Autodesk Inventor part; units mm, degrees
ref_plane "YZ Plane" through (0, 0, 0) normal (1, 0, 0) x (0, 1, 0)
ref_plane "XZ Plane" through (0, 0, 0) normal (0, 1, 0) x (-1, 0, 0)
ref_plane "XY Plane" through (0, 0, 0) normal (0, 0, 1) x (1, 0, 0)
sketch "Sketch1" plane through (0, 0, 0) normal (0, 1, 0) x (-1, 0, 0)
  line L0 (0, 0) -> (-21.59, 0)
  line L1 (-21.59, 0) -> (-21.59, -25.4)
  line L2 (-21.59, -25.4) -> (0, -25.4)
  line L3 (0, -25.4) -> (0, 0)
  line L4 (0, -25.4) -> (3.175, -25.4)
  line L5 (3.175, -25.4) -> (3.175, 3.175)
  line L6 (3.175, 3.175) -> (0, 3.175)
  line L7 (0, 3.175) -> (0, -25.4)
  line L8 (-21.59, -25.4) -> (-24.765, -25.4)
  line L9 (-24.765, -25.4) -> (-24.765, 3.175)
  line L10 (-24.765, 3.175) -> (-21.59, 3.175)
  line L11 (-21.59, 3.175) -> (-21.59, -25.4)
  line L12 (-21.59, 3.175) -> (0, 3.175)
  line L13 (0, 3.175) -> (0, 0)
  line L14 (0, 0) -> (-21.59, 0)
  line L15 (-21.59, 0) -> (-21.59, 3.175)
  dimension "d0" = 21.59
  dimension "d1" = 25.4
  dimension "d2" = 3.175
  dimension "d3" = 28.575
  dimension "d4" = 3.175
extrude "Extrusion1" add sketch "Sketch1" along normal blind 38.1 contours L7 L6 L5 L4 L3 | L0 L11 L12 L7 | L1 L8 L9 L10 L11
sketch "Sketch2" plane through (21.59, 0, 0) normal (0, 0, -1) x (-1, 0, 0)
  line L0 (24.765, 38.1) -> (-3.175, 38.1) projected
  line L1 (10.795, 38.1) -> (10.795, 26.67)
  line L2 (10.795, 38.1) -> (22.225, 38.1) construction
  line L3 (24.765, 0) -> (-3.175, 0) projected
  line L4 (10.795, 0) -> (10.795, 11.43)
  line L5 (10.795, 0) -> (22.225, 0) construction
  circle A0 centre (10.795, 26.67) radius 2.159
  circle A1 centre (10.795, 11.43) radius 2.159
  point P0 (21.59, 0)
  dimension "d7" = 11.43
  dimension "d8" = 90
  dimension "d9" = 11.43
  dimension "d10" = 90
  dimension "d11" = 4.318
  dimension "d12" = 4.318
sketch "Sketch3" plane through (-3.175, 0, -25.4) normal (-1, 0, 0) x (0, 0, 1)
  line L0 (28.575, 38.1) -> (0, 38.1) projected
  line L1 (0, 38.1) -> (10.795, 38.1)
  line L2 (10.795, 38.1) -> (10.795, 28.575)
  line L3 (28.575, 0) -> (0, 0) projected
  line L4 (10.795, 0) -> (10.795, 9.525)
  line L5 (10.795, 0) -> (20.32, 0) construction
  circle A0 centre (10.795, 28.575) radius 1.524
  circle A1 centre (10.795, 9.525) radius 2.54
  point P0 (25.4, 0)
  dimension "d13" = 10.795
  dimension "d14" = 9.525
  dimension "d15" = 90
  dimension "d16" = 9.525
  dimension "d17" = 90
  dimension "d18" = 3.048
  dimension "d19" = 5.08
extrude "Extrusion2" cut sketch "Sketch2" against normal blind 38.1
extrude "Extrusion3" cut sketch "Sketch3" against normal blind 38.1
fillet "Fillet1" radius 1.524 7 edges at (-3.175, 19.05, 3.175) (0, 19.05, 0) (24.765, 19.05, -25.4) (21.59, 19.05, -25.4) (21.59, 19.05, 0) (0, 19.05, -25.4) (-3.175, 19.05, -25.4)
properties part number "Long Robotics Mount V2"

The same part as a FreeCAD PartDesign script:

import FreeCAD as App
import Part
import Sketcher
Q = App.Units.Quantity


def edges_at(feature, points):
    """Names of the edges that pass closest to the given points."""
    edges = feature.Shape.Edges
    near = lambda p: min(range(len(edges)), key=lambda i: edges[i].distToShape(Part.Vertex(*p))[0])
    return sorted({f"Edge{near(p) + 1}" for p in points})


def add_polygon(sketch, points):
    """Adds a closed chain of lines whose ends are joined by coincident constraints."""
    first, n = sketch.GeometryCount, len(points)
    for a, b in zip(points, points[1:] + points[:1]):
        sketch.addGeometry(Part.LineSegment(App.Vector(*a, 0), App.Vector(*b, 0)), False)
    for i in range(n):
        sketch.addConstraint(Sketcher.Constraint("Coincident", first + i, 2, first + (i + 1) % n, 1))

doc = App.newDocument("Part")
body = doc.addObject("PartDesign::Body", "Body")

# Sketch on XZ plane
sketch1 = body.newObject("Sketcher::SketchObject", "Sketch")
sketch1.AttachmentSupport = (doc.getObject("XZ_Plane"), [""])
sketch1.MapMode = "FlatFace"
add_polygon(sketch1, [(-3.175, 3.175), (24.765, 3.175), (24.765, -25.4), (21.59, -25.4), (21.59, 0), (0, 0), (0, -25.4), (-3.175, -25.4)])  # lines 0-7
sketch1.addConstraint([
    Sketcher.Constraint("Horizontal", 0),
    Sketcher.Constraint("Vertical", 1),
    Sketcher.Constraint("Horizontal", 2),
    Sketcher.Constraint("Vertical", 3),
    Sketcher.Constraint("Horizontal", 4),
    Sketcher.Constraint("Vertical", 5),
    Sketcher.Constraint("Horizontal", 6),
    Sketcher.Constraint("Vertical", 7),
    Sketcher.Constraint("Coincident", 4, 2, -1, 1),
    Sketcher.Constraint("Horizontal", 2, 2, 5, 2),
    Sketcher.Constraint("Equal", 2, 6),
    Sketcher.Constraint("DistanceY", 3, 1, 3, 2, Q("1 in")),
    Sketcher.Constraint("DistanceX", 4, 2, 4, 1, Q("0.85 in")),
    Sketcher.Constraint("DistanceX", 2, 2, 2, 1, Q("0.125 in")),
    Sketcher.Constraint("DistanceY", 1, 2, 1, 1, Q("1.125 in")),
])
pad1 = body.newObject("PartDesign::Pad", "Pad")
pad1.Profile = sketch1
pad1.Length = Q("1.5 in")
pad1.Reversed = True

# Sketch on XY plane
sketch2 = body.newObject("Sketcher::SketchObject", "Sketch001")
sketch2.AttachmentSupport = (doc.getObject("XY_Plane"), [""])
sketch2.MapMode = "FlatFace"
sketch2.addGeometry([
    Part.Circle(App.Vector(10.795, 26.67, 0), App.Vector(0, 0, 1), 2.159),
    Part.Circle(App.Vector(10.795, 11.43, 0), App.Vector(0, 0, 1), 2.159),
], False)
sketch2.addConstraint([
    Sketcher.Constraint("Equal", 0, 1),
    Sketcher.Constraint("Vertical", 0, 3, 1, 3),
    Sketcher.Constraint("Diameter", 0, Q("0.17 in")),
    Sketcher.Constraint("DistanceY", -1, 1, 1, 3, Q("0.45 in")),
    Sketcher.Constraint("DistanceY", 1, 3, 0, 3, Q("0.6 in")),
    Sketcher.Constraint("DistanceX", -1, 1, 0, 3, Q("0.425 in")),
])
pocket1 = body.newObject("PartDesign::Pocket", "Pocket")
pocket1.Profile = sketch2
pocket1.Length = Q("1.5 in")
pocket1.Reversed = True

# Sketch on YZ plane
sketch3 = body.newObject("Sketcher::SketchObject", "Sketch002")
sketch3.AttachmentSupport = (doc.getObject("YZ_Plane"), [""])
sketch3.MapMode = "FlatFace"
sketch3.AttachmentOffset = App.Placement(App.Vector(0, 0, -0.125 * 25.4), App.Rotation())
sketch3.addGeometry([
    Part.Circle(App.Vector(28.575, -14.605, 0), App.Vector(0, 0, 1), 1.524),
    Part.Circle(App.Vector(9.525, -14.605, 0), App.Vector(0, 0, 1), 2.54),
], False)
sketch3.addConstraint([
    Sketcher.Constraint("Horizontal", 0, 3, 1, 3),
    Sketcher.Constraint("Diameter", 1, Q("0.2 in")),
    Sketcher.Constraint("Diameter", 0, Q("0.12 in")),
    Sketcher.Constraint("DistanceX", -1, 1, 1, 3, Q("0.375 in")),
    Sketcher.Constraint("DistanceX", 1, 3, 0, 3, Q("0.75 in")),
    Sketcher.Constraint("DistanceY", 0, 3, -1, 1, Q("0.575 in")),
])
pocket2 = body.newObject("PartDesign::Pocket", "Pocket001")
pocket2.Profile = sketch3
pocket2.Length = Q("1.5 in")
pocket2.Reversed = True
doc.recompute()

fillet = body.newObject("PartDesign::Fillet", "Fillet")
fillet.Base = (pocket2, edges_at(pocket2, [
    (-3.175, 19.05, 3.175),
    (0, 19.05, 0),
    (24.765, 19.05, -25.4),
    (21.59, 19.05, -25.4),
    (21.59, 19.05, 0),
    (0, 19.05, -25.4),
    (-3.175, 19.05, -25.4),
]))
fillet.Radius = Q("0.06 in")

doc.recompute()
